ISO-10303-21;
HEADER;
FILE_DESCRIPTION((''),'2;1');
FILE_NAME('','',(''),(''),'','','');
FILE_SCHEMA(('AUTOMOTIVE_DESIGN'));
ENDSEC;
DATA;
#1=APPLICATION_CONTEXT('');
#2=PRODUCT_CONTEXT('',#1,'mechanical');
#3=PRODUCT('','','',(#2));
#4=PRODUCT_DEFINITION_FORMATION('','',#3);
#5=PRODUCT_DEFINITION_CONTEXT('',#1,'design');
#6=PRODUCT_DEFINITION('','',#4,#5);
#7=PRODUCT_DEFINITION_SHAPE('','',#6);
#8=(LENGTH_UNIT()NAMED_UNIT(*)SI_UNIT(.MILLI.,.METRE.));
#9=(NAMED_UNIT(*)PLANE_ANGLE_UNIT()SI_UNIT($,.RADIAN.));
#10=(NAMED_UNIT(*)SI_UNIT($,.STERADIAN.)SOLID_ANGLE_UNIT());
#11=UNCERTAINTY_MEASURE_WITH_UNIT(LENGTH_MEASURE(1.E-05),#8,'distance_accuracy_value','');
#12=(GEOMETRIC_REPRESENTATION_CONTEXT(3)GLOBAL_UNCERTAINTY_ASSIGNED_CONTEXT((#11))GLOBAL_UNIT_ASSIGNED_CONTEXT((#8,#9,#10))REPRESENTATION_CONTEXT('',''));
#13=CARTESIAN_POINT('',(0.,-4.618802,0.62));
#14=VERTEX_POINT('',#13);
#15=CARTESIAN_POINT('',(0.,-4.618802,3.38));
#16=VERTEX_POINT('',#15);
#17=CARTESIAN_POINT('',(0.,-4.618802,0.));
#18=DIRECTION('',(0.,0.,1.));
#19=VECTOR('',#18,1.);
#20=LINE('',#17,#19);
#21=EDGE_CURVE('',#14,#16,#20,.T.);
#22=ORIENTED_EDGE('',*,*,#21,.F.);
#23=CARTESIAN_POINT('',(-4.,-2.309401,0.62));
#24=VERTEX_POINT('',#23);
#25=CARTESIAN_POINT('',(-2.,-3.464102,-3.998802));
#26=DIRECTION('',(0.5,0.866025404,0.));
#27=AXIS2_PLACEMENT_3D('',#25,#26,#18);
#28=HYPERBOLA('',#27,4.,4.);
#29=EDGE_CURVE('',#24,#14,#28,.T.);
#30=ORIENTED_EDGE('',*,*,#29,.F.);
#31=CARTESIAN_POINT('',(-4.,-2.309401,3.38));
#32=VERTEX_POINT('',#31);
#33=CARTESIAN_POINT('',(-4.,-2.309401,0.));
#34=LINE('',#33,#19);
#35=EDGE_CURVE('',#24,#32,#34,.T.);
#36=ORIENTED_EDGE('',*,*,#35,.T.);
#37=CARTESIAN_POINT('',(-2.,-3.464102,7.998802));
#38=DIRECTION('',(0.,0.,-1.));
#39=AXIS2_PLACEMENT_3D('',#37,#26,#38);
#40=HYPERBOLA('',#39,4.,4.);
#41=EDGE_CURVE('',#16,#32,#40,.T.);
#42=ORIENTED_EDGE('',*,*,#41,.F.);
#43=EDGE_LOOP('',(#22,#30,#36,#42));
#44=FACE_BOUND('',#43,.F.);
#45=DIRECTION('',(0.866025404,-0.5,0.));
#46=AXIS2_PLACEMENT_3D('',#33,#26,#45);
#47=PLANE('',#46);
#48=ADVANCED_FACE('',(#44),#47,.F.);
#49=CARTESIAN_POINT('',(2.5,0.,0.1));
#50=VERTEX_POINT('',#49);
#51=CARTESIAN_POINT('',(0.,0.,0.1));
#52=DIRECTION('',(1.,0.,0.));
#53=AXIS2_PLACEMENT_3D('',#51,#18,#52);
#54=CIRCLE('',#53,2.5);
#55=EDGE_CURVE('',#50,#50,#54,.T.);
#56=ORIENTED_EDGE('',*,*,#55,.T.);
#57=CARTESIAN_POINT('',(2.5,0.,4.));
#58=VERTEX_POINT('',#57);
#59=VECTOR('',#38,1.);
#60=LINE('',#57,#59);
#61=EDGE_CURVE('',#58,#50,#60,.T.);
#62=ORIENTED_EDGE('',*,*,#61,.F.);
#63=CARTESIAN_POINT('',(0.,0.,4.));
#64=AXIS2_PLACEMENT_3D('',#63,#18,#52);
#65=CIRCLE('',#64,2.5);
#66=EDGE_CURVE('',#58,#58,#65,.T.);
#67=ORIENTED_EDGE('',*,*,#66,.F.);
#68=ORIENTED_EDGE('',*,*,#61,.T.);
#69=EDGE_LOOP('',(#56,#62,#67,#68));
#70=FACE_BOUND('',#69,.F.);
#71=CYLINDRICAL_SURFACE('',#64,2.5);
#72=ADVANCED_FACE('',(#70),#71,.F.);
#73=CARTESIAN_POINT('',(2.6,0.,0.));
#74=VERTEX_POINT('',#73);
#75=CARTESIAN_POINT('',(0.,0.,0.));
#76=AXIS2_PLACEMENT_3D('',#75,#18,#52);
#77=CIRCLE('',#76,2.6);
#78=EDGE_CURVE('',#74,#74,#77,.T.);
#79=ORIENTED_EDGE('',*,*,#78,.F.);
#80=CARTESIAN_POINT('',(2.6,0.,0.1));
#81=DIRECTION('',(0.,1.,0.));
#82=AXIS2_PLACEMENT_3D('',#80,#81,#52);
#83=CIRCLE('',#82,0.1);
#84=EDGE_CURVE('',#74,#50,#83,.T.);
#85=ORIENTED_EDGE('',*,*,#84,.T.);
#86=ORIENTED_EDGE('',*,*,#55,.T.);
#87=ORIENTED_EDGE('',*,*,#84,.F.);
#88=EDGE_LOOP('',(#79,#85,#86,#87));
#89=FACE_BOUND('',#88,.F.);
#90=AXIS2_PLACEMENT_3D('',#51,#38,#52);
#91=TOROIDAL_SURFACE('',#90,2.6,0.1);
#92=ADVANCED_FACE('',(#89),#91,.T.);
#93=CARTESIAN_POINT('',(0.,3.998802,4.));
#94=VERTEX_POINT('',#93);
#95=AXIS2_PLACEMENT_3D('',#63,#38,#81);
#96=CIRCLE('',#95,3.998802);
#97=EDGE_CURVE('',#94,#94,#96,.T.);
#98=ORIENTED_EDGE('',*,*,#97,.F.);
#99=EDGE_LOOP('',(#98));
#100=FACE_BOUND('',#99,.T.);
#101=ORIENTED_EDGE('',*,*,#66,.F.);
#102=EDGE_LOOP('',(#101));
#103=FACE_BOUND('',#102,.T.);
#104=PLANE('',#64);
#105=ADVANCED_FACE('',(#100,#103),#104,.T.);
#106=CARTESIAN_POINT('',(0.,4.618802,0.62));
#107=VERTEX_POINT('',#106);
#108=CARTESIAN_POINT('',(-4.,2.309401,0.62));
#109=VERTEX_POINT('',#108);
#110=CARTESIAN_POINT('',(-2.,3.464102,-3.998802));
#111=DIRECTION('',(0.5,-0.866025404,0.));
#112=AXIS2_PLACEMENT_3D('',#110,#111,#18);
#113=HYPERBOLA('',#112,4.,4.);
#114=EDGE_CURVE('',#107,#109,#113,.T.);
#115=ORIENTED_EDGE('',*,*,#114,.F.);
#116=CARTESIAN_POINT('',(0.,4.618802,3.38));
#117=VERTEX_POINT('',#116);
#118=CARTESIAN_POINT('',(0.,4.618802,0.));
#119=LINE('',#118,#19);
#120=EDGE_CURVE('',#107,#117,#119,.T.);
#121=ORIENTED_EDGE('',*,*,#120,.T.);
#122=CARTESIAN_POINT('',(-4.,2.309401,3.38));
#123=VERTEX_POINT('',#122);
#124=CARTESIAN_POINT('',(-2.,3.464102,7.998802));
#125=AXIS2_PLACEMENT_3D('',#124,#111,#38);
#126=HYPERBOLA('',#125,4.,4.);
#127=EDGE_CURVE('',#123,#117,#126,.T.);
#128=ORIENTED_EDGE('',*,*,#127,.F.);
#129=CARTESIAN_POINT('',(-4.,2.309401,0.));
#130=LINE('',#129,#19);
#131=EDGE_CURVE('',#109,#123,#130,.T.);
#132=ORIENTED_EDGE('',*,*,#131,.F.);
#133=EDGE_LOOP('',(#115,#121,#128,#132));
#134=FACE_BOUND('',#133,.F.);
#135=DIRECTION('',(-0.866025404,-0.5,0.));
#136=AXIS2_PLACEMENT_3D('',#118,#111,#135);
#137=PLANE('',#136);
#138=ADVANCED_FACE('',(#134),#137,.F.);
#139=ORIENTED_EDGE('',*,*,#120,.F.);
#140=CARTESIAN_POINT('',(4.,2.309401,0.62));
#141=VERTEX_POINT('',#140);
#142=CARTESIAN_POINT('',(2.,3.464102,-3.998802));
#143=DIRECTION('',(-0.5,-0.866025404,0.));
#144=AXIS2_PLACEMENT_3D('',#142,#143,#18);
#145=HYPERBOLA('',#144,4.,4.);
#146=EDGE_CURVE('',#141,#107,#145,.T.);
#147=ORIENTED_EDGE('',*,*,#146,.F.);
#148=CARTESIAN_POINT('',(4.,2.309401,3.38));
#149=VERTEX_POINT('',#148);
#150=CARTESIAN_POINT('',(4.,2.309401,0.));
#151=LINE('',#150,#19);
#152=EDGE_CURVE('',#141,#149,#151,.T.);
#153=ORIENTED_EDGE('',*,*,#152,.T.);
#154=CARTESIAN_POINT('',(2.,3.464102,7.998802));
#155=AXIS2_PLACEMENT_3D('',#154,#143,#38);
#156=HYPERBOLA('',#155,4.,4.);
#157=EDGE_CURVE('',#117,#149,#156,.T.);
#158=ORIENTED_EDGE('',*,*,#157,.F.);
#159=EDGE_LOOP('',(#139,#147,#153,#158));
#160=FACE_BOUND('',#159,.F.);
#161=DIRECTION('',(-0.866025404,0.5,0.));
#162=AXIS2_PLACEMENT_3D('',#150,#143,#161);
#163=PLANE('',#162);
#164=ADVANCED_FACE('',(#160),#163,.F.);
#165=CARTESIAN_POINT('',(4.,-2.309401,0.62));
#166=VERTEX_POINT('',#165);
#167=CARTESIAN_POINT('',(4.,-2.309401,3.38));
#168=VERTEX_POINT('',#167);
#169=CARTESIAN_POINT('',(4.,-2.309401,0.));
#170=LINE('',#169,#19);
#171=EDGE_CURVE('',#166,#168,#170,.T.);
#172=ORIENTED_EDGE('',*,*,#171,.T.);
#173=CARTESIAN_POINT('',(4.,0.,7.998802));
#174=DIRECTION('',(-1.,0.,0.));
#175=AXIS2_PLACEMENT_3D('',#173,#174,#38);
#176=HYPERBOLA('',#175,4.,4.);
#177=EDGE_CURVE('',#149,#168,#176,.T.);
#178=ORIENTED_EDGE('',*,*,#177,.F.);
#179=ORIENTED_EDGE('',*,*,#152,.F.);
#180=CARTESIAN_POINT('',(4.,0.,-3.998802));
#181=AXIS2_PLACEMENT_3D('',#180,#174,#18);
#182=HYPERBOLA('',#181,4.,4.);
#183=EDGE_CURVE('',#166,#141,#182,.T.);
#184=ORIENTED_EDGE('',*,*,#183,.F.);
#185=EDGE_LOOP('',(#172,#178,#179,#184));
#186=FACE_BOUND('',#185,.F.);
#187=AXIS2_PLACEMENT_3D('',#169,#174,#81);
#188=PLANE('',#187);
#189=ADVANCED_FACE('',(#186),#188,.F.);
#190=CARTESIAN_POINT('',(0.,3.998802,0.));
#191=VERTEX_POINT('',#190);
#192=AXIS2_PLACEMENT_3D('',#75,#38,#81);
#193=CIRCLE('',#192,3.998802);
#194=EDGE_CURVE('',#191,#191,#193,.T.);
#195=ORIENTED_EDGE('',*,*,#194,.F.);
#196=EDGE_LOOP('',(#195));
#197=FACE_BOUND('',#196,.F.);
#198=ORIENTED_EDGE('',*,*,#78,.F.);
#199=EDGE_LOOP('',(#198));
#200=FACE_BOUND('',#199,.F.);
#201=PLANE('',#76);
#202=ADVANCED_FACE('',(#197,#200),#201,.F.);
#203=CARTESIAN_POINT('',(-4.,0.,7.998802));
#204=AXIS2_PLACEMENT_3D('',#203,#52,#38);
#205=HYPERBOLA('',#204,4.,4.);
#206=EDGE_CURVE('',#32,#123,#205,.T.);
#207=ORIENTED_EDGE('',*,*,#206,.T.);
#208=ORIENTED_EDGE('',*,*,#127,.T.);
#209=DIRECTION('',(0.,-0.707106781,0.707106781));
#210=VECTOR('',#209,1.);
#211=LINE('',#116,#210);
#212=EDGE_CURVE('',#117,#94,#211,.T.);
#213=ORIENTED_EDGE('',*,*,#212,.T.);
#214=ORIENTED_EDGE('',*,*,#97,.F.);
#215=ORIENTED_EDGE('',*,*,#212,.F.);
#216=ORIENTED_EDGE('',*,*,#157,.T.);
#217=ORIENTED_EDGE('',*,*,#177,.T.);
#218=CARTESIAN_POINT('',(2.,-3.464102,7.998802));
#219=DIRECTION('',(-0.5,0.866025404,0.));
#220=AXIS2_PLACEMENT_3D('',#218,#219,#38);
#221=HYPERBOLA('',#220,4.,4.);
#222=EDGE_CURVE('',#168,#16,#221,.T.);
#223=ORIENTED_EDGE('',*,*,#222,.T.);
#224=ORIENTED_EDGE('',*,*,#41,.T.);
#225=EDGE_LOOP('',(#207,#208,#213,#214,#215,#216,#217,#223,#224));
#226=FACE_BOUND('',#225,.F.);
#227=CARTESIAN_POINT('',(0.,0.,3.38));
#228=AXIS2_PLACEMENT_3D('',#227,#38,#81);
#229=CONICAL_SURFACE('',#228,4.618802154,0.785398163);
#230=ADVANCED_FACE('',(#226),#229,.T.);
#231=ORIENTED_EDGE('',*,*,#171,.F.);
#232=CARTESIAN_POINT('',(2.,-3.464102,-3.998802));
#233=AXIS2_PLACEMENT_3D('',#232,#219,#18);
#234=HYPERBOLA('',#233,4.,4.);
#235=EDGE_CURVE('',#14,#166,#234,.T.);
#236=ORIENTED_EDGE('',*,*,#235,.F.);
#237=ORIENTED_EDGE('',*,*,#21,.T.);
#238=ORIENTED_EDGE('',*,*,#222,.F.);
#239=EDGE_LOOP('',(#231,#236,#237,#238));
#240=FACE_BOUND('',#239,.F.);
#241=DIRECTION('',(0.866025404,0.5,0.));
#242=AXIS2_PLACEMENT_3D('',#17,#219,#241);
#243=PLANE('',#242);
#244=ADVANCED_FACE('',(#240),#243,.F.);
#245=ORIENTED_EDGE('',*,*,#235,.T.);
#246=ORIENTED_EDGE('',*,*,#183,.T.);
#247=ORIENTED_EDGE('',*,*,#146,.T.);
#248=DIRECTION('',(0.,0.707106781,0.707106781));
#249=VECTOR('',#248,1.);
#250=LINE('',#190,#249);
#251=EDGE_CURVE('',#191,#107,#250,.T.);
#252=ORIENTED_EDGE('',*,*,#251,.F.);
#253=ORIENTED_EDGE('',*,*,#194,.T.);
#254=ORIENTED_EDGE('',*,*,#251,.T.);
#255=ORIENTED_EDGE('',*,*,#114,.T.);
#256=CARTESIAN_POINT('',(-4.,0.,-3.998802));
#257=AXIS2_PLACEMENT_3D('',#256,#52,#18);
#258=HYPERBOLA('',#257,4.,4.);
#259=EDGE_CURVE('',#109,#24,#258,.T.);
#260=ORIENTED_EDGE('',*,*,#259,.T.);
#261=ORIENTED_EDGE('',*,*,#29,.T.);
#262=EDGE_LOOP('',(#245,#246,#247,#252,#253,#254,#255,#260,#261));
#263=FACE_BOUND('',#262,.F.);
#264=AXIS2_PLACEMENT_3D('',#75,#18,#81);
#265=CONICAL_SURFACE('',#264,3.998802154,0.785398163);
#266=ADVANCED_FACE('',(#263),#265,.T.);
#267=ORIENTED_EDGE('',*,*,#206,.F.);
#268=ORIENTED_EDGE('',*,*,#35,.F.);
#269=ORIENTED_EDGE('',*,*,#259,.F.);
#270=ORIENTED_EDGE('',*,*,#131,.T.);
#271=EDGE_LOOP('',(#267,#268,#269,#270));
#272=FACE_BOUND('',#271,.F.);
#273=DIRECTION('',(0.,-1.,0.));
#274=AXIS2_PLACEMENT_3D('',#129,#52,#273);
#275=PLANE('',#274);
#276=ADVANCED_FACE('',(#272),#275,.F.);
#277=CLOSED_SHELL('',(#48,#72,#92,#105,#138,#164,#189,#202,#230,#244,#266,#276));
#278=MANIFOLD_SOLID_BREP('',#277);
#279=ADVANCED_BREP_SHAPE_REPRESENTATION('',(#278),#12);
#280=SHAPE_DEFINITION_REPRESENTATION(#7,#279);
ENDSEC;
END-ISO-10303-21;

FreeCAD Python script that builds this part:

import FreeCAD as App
import Part
import Sketcher

V = App.Vector
Q = App.Units.Quantity


def edges_at(feature, points):
    """Names of the edges that pass closest to the given points."""
    edges = feature.Shape.Edges
    near = lambda p: min(range(len(edges)), key=lambda i: edges[i].distToShape(Part.Vertex(*p))[0])
    return sorted({f"Edge{near(p) + 1}" for p in points})


def add_polygon(sketch, points):
    """Adds a closed chain of lines whose ends are joined by coincident constraints."""
    first, n = sketch.GeometryCount, len(points)
    for a, b in zip(points, points[1:] + points[:1]):
        sketch.addGeometry(Part.LineSegment(App.Vector(*a, 0), App.Vector(*b, 0)), False)
    for i in range(n):
        sketch.addConstraint(Sketcher.Constraint("Coincident", first + i, 2, first + (i + 1) % n, 1))

doc = App.newDocument("Part")
body = doc.addObject("PartDesign::Body", "Body")

# Sketch on XY plane
sketch1 = body.newObject("Sketcher::SketchObject", "Sketch")
sketch1.AttachmentSupport = (doc.getObject("XY_Plane"), [""])
sketch1.MapMode = "FlatFace"
add_polygon(sketch1, [(0, 4.6), (-4, 2.3), (-4, -2.3), (0, -4.6), (4, -2.3), (4, 2.3)])  # lines 0-5
sketch1.addConstraint(Sketcher.Constraint("Vertical", 1))
sketch1.addConstraint(Sketcher.Constraint("Vertical", 4))
sketch1.addConstraint(Sketcher.Constraint("Symmetric", 0, 2, 3, 2, -1, 1))
sketch1.addConstraint(Sketcher.Constraint("Symmetric", 2, 2, 5, 2, -1, 1))
sketch1.addConstraint(Sketcher.Constraint("PointOnObject", 2, 2, -2))
sketch1.addConstraint(Sketcher.Constraint("Parallel", 2, 5))
sketch1.addConstraint(Sketcher.Constraint("Horizontal", 1, 2, 3, 2))
sketch1.addConstraint(Sketcher.Constraint("Angle", 0, Q("-150 deg")))
sketch1.addConstraint(Sketcher.Constraint("DistanceX", 0, 2, -1, 1, 4.0))
sketch1.addConstraint(Sketcher.Constraint("DistanceY", -1, 1, 0, 2, 2.309401))
pad1 = body.newObject("PartDesign::Pad", "Pad")
pad1.Profile = sketch1
pad1.Length = 4

# Sketch on XY plane
sketch2 = body.newObject("Sketcher::SketchObject", "Sketch001")
sketch2.AttachmentSupport = (doc.getObject("XY_Plane"), [""])
sketch2.MapMode = "FlatFace"
sketch2.AttachmentOffset = App.Placement(V(0, 0, 4), App.Rotation())
sketch2.addGeometry(Part.Circle(V(0, 0, 0), V(0, 0, 1), 2.5), False)
sketch2.addConstraint(Sketcher.Constraint("Coincident", 0, 3, -1, 1))
sketch2.addConstraint(Sketcher.Constraint("Diameter", 0, 5.0))
pocket1 = body.newObject("PartDesign::Pocket", "Pocket")
pocket1.Profile = sketch2
pocket1.Length = 4
doc.recompute()

fillet = body.newObject("PartDesign::Fillet", "Fillet")
fillet.Base = (pocket1, edges_at(pocket1, [(-2.5, 0, 0)]))
fillet.Radius = 0.1

# Sketch on YZ plane
sketch3 = body.newObject("Sketcher::SketchObject", "Sketch002")
sketch3.AttachmentSupport = (doc.getObject("YZ_Plane"), [""])
sketch3.MapMode = "FlatFace"
add_polygon(sketch3, [(4, 0), (4.6, 0), (4.6, 0.6)])  # lines 0-2
add_polygon(sketch3, [(4, 4), (4.6, 3.4), (4.6, 4)])  # lines 3-5
sketch3.addConstraint(Sketcher.Constraint("Horizontal", 0))
sketch3.addConstraint(Sketcher.Constraint("Vertical", 1))
sketch3.addConstraint(Sketcher.Constraint("Vertical", 4))
sketch3.addConstraint(Sketcher.Constraint("Horizontal", 5))
sketch3.addConstraint(Sketcher.Constraint("PointOnObject", 0, 2, -1))
sketch3.addConstraint(Sketcher.Constraint("Perpendicular", 2, 3))
sketch3.addConstraint(Sketcher.Constraint("Vertical", 1, 2, 3, 2))
sketch3.addConstraint(Sketcher.Constraint("Vertical", 2, 2, 5, 2))
sketch3.addConstraint(Sketcher.Constraint("Equal", 5, 1))
sketch3.addConstraint(Sketcher.Constraint("DistanceY", -1, 1, 4, 2, 4.0))
sketch3.addConstraint(Sketcher.Constraint("DistanceX", 0, 1, 0, 2, 0.62))
sketch3.addConstraint(Sketcher.Constraint("DistanceX", -1, 1, 0, 2, 4.618802))
groove = body.newObject("PartDesign::Groove", "Groove")
groove.Profile = sketch3
groove.ReferenceAxis = (sketch3, ["V_Axis"])
groove.Angle = 360

doc.recompute()
